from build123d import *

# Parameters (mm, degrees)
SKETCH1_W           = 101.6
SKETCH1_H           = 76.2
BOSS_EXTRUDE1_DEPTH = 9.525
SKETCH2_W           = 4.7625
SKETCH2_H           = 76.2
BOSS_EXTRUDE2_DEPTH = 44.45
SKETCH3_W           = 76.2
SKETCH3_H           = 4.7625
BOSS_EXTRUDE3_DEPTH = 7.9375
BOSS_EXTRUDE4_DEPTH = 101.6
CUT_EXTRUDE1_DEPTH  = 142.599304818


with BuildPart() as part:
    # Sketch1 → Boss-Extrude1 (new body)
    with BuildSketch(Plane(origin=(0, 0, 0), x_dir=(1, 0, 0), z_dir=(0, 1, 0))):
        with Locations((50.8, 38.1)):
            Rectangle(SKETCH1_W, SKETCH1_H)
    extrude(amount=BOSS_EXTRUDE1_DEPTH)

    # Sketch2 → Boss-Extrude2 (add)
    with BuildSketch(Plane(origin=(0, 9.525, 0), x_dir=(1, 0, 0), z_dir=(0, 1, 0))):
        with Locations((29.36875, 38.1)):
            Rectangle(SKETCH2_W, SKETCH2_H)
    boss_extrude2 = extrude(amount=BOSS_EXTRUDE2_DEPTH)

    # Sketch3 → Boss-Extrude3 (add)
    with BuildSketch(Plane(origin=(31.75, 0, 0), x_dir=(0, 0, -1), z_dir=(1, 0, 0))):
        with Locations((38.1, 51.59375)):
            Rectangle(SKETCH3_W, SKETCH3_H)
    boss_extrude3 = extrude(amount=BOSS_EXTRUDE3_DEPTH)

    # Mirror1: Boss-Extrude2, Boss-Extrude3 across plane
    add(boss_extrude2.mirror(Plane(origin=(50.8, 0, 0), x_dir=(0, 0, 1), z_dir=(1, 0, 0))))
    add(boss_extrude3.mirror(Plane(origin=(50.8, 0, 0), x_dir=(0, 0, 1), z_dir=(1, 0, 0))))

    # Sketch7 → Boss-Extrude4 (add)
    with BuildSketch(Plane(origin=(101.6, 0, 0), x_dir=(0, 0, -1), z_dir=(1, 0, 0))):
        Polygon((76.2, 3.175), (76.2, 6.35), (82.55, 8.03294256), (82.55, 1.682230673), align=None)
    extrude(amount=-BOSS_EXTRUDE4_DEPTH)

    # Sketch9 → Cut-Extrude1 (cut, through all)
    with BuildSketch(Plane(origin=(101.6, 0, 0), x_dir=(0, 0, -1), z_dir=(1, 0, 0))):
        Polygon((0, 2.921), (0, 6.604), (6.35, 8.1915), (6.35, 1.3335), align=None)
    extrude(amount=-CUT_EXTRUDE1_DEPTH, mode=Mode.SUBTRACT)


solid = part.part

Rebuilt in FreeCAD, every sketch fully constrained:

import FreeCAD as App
import Part
import Sketcher
Q = App.Units.Quantity


def add_polygon(sketch, points):
    """Adds a closed chain of lines whose ends are joined by coincident constraints."""
    first, n = sketch.GeometryCount, len(points)
    for a, b in zip(points, points[1:] + points[:1]):
        sketch.addGeometry(Part.LineSegment(App.Vector(*a, 0), App.Vector(*b, 0)), False)
    for i in range(n):
        sketch.addConstraint(Sketcher.Constraint("Coincident", first + i, 2, first + (i + 1) % n, 1))

doc = App.newDocument("Part")
body = doc.addObject("PartDesign::Body", "Body")

sketch1 = doc.addObject("Sketcher::SketchObject", "Sketch")
body.addObject(sketch1)
sketch1.AttachmentSupport = (doc.XZ_Plane, [""])
sketch1.MapMode = "FlatFace"
add_polygon(sketch1, [(0, -76), (0, 0), (102, 0), (102, -76)])
sketch1.addConstraint([
    Sketcher.Constraint("Vertical", 0),
    Sketcher.Constraint("Horizontal", 1),
    Sketcher.Constraint("Vertical", 2),
    Sketcher.Constraint("Horizontal", 3),
    Sketcher.Constraint("Coincident", 0, 2, -1, 1),
    Sketcher.Constraint("DistanceX", 1, 1, 1, 2, Q("4 in")),
    Sketcher.Constraint("DistanceY", 0, 1, 0, 2, Q("3 in")),
])
pad1 = doc.addObject("PartDesign::Pad", "Pad")
body.addObject(pad1)
pad1.Profile = sketch1
pad1.Length = Q("0.375 in")
pad1.Reversed = True

sketch2 = doc.addObject("Sketcher::SketchObject", "Sketch001")
body.addObject(sketch2)
sketch2.AttachmentSupport = (doc.XZ_Plane, [""])
sketch2.MapMode = "FlatFace"
sketch2.AttachmentOffset = App.Placement(App.Vector(0, 0, -0.375 * 25.4), App.Rotation())
add_polygon(sketch2, [(27, -76.2), (27, 0), (31.8, 0), (31.8, -76.2)])
sketch2.addConstraint([
    Sketcher.Constraint("Vertical", 0),
    Sketcher.Constraint("Horizontal", 1),
    Sketcher.Constraint("Vertical", 2),
    Sketcher.Constraint("Horizontal", 3),
    Sketcher.Constraint("PointOnObject", 0, 2, -1),
    Sketcher.Constraint("DistanceY", 0, 1, 0, 2, Q("3 in")),
    Sketcher.Constraint("DistanceX", 1, 1, 1, 2, Q("0.1875 in")),
    Sketcher.Constraint("DistanceX", -1, 1, 1, 2, Q("1.25 in")),
])
pad2 = doc.addObject("PartDesign::Pad", "Pad001")
body.addObject(pad2)
pad2.Profile = sketch2
pad2.Length = Q("1.75 in")
pad2.Reversed = True

sketch3 = doc.addObject("Sketcher::SketchObject", "Sketch002")
body.addObject(sketch3)
sketch3.AttachmentSupport = (doc.YZ_Plane, [""])
sketch3.MapMode = "FlatFace"
sketch3.AttachmentOffset = App.Placement(App.Vector(0, 0, 1.25 * 25.4), App.Rotation())
add_polygon(sketch3, [(54, 0), (49.2, 0), (49.2, -76.2), (54, -76.2)])
sketch3.addConstraint([
    Sketcher.Constraint("Horizontal", 0),
    Sketcher.Constraint("Vertical", 1),
    Sketcher.Constraint("Horizontal", 2),
    Sketcher.Constraint("Vertical", 3),
    Sketcher.Constraint("PointOnObject", 0, 2, -1),
    Sketcher.Constraint("DistanceY", 1, 2, 1, 1, Q("3 in")),
    Sketcher.Constraint("DistanceX", 0, 2, 0, 1, Q("0.1875 in")),
    Sketcher.Constraint("DistanceX", -1, 1, 0, 2, Q("1.9375 in")),
])
pad3 = doc.addObject("PartDesign::Pad", "Pad002")
body.addObject(pad3)
pad3.Profile = sketch3
pad3.Length = Q("0.3125 in")
doc.recompute()

datumplane = doc.addObject("PartDesign::Plane", "DatumPlane")
body.addObject(datumplane)
datumplane.AttachmentSupport = (doc.YZ_Plane, [""])
datumplane.MapMode = "FlatFace"
datumplane.AttachmentOffset = App.Placement(App.Vector(0, 0, 2 * 25.4), App.Rotation())
mirrored = doc.addObject("PartDesign::Mirrored", "Mirrored")
body.addObject(mirrored)
mirrored.Originals = [pad2, pad3]
mirrored.MirrorPlane = (datumplane, [""])
body.Tip = mirrored

sketch4 = doc.addObject("Sketcher::SketchObject", "Sketch003")
body.addObject(sketch4)
sketch4.AttachmentSupport = (doc.YZ_Plane, [""])
sketch4.MapMode = "FlatFace"
sketch4.AttachmentOffset = App.Placement(App.Vector(0, 0, 4 * 25.4), App.Rotation())
add_polygon(sketch4, [(6.3, -76.2), (3.2, -76.2), (1.7, -82.5), (8, -82.5)])
sketch4.addConstraint([
    Sketcher.Constraint("Horizontal", 0),
    Sketcher.Constraint("Horizontal", 2),
    Sketcher.Constraint("DistanceY", 0, 2, -1, 1, Q("3 in")),
    Sketcher.Constraint("DistanceX", 0, 2, 0, 1, Q("0.125 in")),
    Sketcher.Constraint("DistanceY", 1, 2, -1, 1, Q("3.25 in")),
    Sketcher.Constraint("DistanceX", -1, 1, 3, 2, Q("0.25 in")),
    Sketcher.Constraint("DistanceX", 2, 1, 2, 2, 6.350712),
    Sketcher.Constraint("Distance", 3, 6.569231),
])
pad4 = doc.addObject("PartDesign::Pad", "Pad003")
body.addObject(pad4)
pad4.Profile = sketch4
pad4.Length = Q("4 in")
pad4.Reversed = True

sketch5 = doc.addObject("Sketcher::SketchObject", "Sketch004")
body.addObject(sketch5)
sketch5.AttachmentSupport = (doc.YZ_Plane, [""])
sketch5.MapMode = "FlatFace"
sketch5.AttachmentOffset = App.Placement(App.Vector(0, 0, 4 * 25.4), App.Rotation())
add_polygon(sketch5, [(6.6, 0), (2.9, 0), (1.3, -6.3), (8.2, -6.3)])
sketch5.addConstraint([
    Sketcher.Constraint("Horizontal", 0),
    Sketcher.Constraint("Horizontal", 2),
    Sketcher.Constraint("PointOnObject", 0, 2, -1),
    Sketcher.Constraint("Equal", 1, 3),
    Sketcher.Constraint("DistanceX", 2, 1, 2, 2, Q("0.27 in")),
    Sketcher.Constraint("DistanceX", 0, 2, 0, 1, Q("0.145 in")),
    Sketcher.Constraint("DistanceY", 1, 2, -1, 1, Q("0.25 in")),
    Sketcher.Constraint("DistanceX", -1, 1, 3, 2, Q("0.26 in")),
])
pocket1 = doc.addObject("PartDesign::Pocket", "Pocket")
body.addObject(pocket1)
pocket1.Profile = sketch5
pocket1.Type = "ThroughAll"

doc.recompute()
